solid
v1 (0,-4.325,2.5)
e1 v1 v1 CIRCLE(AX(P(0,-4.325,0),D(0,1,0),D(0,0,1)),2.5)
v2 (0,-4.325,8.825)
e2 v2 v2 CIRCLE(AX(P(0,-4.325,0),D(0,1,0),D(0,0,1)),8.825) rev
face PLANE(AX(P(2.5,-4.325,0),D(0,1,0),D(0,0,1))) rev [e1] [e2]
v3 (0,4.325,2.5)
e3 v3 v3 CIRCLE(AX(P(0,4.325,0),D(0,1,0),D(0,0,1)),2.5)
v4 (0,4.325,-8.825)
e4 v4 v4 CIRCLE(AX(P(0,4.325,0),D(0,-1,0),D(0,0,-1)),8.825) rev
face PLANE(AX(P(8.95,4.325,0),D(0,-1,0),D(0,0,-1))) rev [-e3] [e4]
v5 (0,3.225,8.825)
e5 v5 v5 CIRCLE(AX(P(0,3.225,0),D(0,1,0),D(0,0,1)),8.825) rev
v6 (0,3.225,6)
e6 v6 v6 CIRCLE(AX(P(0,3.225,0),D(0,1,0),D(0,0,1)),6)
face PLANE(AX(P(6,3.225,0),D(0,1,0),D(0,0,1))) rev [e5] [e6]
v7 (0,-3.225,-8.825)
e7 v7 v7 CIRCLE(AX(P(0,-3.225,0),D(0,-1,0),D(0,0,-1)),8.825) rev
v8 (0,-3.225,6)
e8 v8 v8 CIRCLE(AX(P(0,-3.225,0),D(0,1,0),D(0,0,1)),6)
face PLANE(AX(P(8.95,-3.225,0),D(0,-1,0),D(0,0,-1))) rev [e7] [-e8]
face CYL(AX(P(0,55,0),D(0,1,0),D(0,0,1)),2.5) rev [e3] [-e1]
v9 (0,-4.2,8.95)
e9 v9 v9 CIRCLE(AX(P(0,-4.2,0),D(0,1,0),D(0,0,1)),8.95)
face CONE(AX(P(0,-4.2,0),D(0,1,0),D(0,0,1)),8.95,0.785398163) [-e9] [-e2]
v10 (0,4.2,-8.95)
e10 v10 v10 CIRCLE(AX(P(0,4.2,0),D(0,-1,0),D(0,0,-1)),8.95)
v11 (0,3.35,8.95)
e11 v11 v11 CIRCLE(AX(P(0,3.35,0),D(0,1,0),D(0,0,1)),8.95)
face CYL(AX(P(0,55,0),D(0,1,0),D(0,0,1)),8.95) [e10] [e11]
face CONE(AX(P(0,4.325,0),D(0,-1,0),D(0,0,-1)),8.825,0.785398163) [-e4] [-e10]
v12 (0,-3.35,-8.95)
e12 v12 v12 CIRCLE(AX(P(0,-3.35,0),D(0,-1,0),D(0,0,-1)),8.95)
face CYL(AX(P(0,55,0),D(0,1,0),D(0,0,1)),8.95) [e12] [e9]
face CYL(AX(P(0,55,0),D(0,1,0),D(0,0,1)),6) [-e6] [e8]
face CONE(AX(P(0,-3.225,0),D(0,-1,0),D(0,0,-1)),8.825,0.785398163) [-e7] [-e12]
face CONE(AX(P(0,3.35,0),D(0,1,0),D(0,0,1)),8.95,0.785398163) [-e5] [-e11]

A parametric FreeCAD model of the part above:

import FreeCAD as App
import Part
import Sketcher


def edges_at(feature, points):
    """Names of the edges that pass closest to the given points."""
    edges = feature.Shape.Edges
    near = lambda p: min(range(len(edges)), key=lambda i: edges[i].distToShape(Part.Vertex(*p))[0])
    return sorted({f"Edge{near(p) + 1}" for p in points})

doc = App.newDocument("Part")
body = doc.addObject("PartDesign::Body", "Body")

# Sketch on XY plane
sketch1 = body.newObject("Sketcher::SketchObject", "Sketch")
sketch1.AttachmentSupport = (doc.getObject("XY_Plane"), [""])
sketch1.MapMode = "FlatFace"
sketch1.addGeometry(Part.LineSegment(App.Vector(2.5, 4.3, 0), App.Vector(2.5, -4.3, 0)), False)
sketch1.addGeometry(Part.LineSegment(App.Vector(2.5, -4.3, 0), App.Vector(8.9, -4.3, 0)), False)
sketch1.addGeometry(Part.LineSegment(App.Vector(8.9, -4.3, 0), App.Vector(8.9, -3.2, 0)), False)
sketch1.addGeometry(Part.LineSegment(App.Vector(8.9, -3.2, 0), App.Vector(6, -3.2, 0)), False)
sketch1.addGeometry(Part.LineSegment(App.Vector(6, -3.2, 0), App.Vector(6, 3.2, 0)), False)
sketch1.addGeometry(Part.LineSegment(App.Vector(6, 3.2, 0), App.Vector(8.9, 3.2, 0)), False)
sketch1.addGeometry(Part.LineSegment(App.Vector(8.9, 3.2, 0), App.Vector(8.9, 4.3, 0)), False)
sketch1.addGeometry(Part.LineSegment(App.Vector(8.9, 4.3, 0), App.Vector(2.5, 4.3, 0)), False)
sketch1.addConstraint(Sketcher.Constraint("Coincident", 0, 2, 1, 1))
sketch1.addConstraint(Sketcher.Constraint("Coincident", 1, 2, 2, 1))
sketch1.addConstraint(Sketcher.Constraint("Coincident", 2, 2, 3, 1))
sketch1.addConstraint(Sketcher.Constraint("Coincident", 3, 2, 4, 1))
sketch1.addConstraint(Sketcher.Constraint("Coincident", 4, 2, 5, 1))
sketch1.addConstraint(Sketcher.Constraint("Coincident", 5, 2, 6, 1))
sketch1.addConstraint(Sketcher.Constraint("Coincident", 6, 2, 7, 1))
sketch1.addConstraint(Sketcher.Constraint("Coincident", 7, 2, 0, 1))
sketch1.addConstraint(Sketcher.Constraint("Vertical", 0))
sketch1.addConstraint(Sketcher.Constraint("Horizontal", 1))
sketch1.addConstraint(Sketcher.Constraint("Vertical", 2))
sketch1.addConstraint(Sketcher.Constraint("Horizontal", 3))
sketch1.addConstraint(Sketcher.Constraint("Vertical", 4))
sketch1.addConstraint(Sketcher.Constraint("Horizontal", 5))
sketch1.addConstraint(Sketcher.Constraint("Vertical", 6))
sketch1.addConstraint(Sketcher.Constraint("Horizontal", 7))
sketch1.addConstraint(Sketcher.Constraint("Symmetric", 2, 2, 5, 2, -1))
sketch1.addConstraint(Sketcher.Constraint("Equal", 7, 4))
sketch1.addConstraint(Sketcher.Constraint("Equal", 2, 6))
sketch1.addConstraint(Sketcher.Constraint("DistanceY", 2, 1, 2, 2, 1.1))
sketch1.addConstraint(Sketcher.Constraint("DistanceX", -1, 1, 3, 2, 6.0))
sketch1.addConstraint(Sketcher.Constraint("DistanceX", 1, 1, 1, 2, 6.45))
sketch1.addConstraint(Sketcher.Constraint("DistanceX", 3, 2, 3, 1, 2.95))
revolution = body.newObject("PartDesign::Revolution", "Revolution")
revolution.Profile = sketch1
revolution.ReferenceAxis = (sketch1, ["V_Axis"])
revolution.Angle = 360
doc.recompute()

chamfer = body.newObject("PartDesign::Chamfer", "Chamfer")
chamfer.Base = (revolution, edges_at(revolution, [
    (0, 4.325, -8.95),
    (0, 3.225, -8.95),
    (0, -3.225, -8.95),
    (0, -4.325, -8.95),
]))
chamfer.Size = 0.125

doc.recompute()
